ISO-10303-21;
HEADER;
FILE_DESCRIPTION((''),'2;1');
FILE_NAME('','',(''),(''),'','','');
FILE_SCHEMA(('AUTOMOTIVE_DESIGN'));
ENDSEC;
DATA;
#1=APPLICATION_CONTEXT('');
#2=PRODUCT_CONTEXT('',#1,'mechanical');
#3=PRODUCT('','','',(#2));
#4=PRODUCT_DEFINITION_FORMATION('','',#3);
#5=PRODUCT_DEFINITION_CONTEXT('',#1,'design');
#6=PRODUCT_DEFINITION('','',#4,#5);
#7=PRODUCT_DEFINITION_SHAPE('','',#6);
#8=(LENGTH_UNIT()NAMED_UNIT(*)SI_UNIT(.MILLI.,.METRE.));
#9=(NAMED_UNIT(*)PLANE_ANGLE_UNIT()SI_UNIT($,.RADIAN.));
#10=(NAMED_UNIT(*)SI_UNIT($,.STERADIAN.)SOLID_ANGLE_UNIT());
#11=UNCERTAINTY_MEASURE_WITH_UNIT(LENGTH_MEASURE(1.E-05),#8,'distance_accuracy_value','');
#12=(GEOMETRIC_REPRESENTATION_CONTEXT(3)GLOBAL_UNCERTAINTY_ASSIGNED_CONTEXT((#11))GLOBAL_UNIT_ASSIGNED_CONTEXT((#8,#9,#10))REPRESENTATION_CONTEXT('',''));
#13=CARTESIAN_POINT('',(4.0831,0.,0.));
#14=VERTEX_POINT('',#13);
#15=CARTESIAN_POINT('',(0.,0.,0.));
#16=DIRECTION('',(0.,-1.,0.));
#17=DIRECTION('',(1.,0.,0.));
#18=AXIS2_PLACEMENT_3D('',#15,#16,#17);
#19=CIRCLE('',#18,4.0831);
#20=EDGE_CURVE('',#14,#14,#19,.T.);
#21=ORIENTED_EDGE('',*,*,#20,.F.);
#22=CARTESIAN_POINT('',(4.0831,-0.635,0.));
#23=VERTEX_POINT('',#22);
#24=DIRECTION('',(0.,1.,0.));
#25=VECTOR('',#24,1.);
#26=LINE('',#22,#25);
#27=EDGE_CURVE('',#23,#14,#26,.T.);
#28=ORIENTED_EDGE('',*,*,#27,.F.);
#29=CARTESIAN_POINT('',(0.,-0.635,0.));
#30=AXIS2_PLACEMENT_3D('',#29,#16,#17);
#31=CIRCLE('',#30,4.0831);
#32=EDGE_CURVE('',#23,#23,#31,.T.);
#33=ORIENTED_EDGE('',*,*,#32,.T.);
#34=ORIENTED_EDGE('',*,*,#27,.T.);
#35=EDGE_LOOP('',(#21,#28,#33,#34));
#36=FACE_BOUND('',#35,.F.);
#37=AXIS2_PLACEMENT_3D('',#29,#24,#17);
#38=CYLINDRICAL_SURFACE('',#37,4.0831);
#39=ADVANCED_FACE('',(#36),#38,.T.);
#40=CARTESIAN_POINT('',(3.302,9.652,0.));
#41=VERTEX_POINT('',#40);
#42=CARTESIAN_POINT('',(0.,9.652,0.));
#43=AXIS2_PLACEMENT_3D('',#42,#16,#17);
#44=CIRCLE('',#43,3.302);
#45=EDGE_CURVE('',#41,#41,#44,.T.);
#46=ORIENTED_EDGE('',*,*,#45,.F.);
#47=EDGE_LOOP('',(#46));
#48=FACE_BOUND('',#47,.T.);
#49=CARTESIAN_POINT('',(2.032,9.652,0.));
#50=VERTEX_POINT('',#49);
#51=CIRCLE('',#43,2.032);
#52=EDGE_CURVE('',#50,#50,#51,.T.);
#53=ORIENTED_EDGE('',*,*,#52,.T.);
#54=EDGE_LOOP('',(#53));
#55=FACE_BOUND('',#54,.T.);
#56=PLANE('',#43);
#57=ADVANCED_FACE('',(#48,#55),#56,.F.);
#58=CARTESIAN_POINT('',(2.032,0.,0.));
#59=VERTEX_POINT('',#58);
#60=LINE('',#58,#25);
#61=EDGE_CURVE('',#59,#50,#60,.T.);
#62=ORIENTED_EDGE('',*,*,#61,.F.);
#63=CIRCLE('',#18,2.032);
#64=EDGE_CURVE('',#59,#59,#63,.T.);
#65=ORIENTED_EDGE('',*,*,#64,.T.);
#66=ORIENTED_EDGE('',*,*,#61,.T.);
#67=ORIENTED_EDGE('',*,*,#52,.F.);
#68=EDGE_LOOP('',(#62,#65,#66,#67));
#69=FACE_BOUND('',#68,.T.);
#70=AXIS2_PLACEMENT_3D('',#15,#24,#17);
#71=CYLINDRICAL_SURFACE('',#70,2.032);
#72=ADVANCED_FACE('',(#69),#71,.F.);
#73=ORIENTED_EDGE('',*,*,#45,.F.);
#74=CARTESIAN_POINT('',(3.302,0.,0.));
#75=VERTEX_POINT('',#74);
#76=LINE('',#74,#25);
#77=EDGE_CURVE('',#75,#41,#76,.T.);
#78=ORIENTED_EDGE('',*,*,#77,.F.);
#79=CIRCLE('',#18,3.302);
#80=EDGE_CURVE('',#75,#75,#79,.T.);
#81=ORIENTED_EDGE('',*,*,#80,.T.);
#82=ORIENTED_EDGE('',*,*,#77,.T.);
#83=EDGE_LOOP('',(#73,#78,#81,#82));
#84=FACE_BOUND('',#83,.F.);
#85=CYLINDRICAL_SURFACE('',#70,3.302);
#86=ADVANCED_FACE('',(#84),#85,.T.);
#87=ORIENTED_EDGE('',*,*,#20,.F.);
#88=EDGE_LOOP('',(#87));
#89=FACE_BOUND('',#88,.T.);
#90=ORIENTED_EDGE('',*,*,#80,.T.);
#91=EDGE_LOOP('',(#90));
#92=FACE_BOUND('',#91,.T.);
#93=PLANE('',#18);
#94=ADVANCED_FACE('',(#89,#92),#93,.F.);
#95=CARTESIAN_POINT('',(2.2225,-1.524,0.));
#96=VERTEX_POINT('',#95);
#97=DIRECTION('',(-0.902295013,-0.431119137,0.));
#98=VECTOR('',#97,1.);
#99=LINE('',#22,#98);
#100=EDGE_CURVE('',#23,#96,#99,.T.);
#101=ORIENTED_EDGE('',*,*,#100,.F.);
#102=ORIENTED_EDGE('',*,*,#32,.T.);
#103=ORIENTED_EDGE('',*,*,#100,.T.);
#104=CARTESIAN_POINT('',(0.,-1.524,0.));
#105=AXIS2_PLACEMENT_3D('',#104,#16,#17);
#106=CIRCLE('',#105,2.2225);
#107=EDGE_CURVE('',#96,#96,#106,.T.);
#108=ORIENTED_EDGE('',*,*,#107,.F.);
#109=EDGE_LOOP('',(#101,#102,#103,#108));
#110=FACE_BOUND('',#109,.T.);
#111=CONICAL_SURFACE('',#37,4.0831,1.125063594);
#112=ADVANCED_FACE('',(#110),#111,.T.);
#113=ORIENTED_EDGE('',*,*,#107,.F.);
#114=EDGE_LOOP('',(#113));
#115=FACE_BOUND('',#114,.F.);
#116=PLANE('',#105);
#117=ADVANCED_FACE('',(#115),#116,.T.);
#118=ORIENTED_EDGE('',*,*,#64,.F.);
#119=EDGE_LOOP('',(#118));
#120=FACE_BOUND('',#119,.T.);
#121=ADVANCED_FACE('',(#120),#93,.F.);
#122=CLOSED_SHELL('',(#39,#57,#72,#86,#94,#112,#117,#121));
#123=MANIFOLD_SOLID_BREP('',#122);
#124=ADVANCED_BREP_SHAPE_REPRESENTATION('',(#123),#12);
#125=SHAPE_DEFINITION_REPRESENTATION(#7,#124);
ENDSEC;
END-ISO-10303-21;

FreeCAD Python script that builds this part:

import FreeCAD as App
import Part
import Sketcher
from FreeCAD import Vector
Q = App.Units.Quantity


def add_polygon(sketch, points):
    """Adds a closed chain of lines whose ends are joined by coincident constraints."""
    first, n = sketch.GeometryCount, len(points)
    for a, b in zip(points, points[1:] + points[:1]):
        sketch.addGeometry(Part.LineSegment(App.Vector(*a, 0), App.Vector(*b, 0)), False)
    for i in range(n):
        sketch.addConstraint(Sketcher.Constraint("Coincident", first + i, 2, first + (i + 1) % n, 1))

doc = App.newDocument("Part")
body = doc.addObject("PartDesign::Body", "Body")

sketch1 = body.newObject("Sketcher::SketchObject", "Sketch")
sketch1.AttachmentSupport = (doc.getObject("XY_Plane"), [""])
sketch1.MapMode = "FlatFace"
add_polygon(sketch1, [(2, 0), (0, 0), (0, -1.5), (2.2, -1.5), (4.1, -0.6), (4.1, 0), (3.3, 0), (3.3, 9.7), (2, 9.7)])
sketch1.addConstraint([
    Sketcher.Constraint("Horizontal", 0),
    Sketcher.Constraint("Vertical", 1),
    Sketcher.Constraint("Horizontal", 2),
    Sketcher.Constraint("Vertical", 4),
    Sketcher.Constraint("Horizontal", 5),
    Sketcher.Constraint("Vertical", 6),
    Sketcher.Constraint("Horizontal", 7),
    Sketcher.Constraint("Vertical", 8),
    Sketcher.Constraint("Coincident", 0, 2, -1, 1),
    Sketcher.Constraint("PointOnObject", 4, 2, -1),
    Sketcher.Constraint("DistanceX", 7, 2, 7, 1, Q("0.05 in")),
    Sketcher.Constraint("DistanceY", 6, 1, 6, 2, Q("0.38 in")),
    Sketcher.Constraint("DistanceY", 4, 1, 4, 2, Q("0.025 in")),
    Sketcher.Constraint("DistanceX", -1, 1, 5, 2, Q("0.13 in")),
    Sketcher.Constraint("DistanceX", 2, 1, 2, 2, Q("0.0875 in")),
    Sketcher.Constraint("DistanceY", 1, 2, 1, 1, Q("0.06 in")),
    Sketcher.Constraint("DistanceX", 5, 2, 5, 1, Q("0.781 mm")),
])
revolution = body.newObject("PartDesign::Revolution", "Revolution")
revolution.Profile = sketch1
revolution.ReferenceAxis = (sketch1, ["V_Axis"])
revolution.Angle = 360

doc.recompute()
